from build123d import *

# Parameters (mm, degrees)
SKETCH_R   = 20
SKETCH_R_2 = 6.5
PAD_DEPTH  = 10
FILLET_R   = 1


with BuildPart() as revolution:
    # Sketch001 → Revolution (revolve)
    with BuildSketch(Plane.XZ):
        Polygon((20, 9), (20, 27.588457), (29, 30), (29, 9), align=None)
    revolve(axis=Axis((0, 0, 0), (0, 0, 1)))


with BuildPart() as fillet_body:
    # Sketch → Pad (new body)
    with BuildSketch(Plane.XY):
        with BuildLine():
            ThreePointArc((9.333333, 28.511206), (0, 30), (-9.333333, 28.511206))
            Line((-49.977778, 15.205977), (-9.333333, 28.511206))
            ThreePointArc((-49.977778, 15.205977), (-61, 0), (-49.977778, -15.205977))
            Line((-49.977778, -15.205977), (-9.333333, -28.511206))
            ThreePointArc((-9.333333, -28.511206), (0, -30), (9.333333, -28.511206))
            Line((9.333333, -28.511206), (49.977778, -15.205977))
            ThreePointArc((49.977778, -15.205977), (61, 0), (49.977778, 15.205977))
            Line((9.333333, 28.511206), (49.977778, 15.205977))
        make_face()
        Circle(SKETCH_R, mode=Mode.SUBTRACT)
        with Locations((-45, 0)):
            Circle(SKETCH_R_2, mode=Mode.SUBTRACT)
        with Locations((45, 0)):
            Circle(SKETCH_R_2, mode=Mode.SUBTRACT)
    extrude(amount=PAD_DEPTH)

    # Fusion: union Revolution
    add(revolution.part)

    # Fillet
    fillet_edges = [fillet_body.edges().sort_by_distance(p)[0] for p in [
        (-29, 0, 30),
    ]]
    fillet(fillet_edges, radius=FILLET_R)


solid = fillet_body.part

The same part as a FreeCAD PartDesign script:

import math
import FreeCAD as App
import Part
import Sketcher

V = App.Vector
Q = App.Units.Quantity


def edges_at(feature, points):
    """Names of the edges that pass closest to the given points."""
    edges = feature.Shape.Edges
    near = lambda p: min(range(len(edges)), key=lambda i: edges[i].distToShape(Part.Vertex(*p))[0])
    return sorted({f"Edge{near(p) + 1}" for p in points})


def add_polygon(sketch, points):
    """Adds a closed chain of lines whose ends are joined by coincident constraints."""
    first, n = sketch.GeometryCount, len(points)
    for a, b in zip(points, points[1:] + points[:1]):
        sketch.addGeometry(Part.LineSegment(App.Vector(*a, 0), App.Vector(*b, 0)), False)
    for i in range(n):
        sketch.addConstraint(Sketcher.Constraint("Coincident", first + i, 2, first + (i + 1) % n, 1))

doc = App.newDocument("Part")
body = doc.addObject("PartDesign::Body", "Body")

sketch1 = body.newObject("Sketcher::SketchObject", "Sketch")
sketch1.AttachmentSupport = (doc.getObject("XZ_Plane"), [""])
sketch1.MapMode = "FlatFace"
add_polygon(sketch1, [(20, 28), (20, 9), (29, 9), (29, 30)])
sketch1.addConstraint([
    Sketcher.Constraint("Vertical", 0),
    Sketcher.Constraint("Horizontal", 1),
    Sketcher.Constraint("Vertical", 2),
    Sketcher.Constraint("DistanceX", 1, 1, 1, 2, 9.0),
    Sketcher.Constraint("DistanceY", 2, 1, 2, 2, 21.0),
    Sketcher.Constraint("Angle", 3, Q("-164.999998 deg")),
    Sketcher.Constraint("DistanceX", -1, 1, 0, 2, 20.0),
    Sketcher.Constraint("DistanceY", -1, 1, 0, 2, 9.0),
])
revolution = body.newObject("PartDesign::Revolution", "Revolution")
revolution.Profile = sketch1
revolution.ReferenceAxis = (sketch1, ["V_Axis"])
revolution.Angle = 360
body2 = doc.addObject("PartDesign::Body", "Body001")

sketch2 = body2.newObject("Sketcher::SketchObject", "Sketch001")
sketch2.AttachmentSupport = (doc.getObject("XY_Plane001"), [""])
sketch2.MapMode = "FlatFace"
sketch2.addGeometry([
    Part.ArcOfCircle(Part.Circle(V(0, 0, 0), V(0, 0, 1), 30), math.radians(72), math.radians(108)),
    Part.LineSegment(V(-9, 29, 0), V(-50, 15, 0)),
    Part.ArcOfCircle(Part.Circle(V(-45, 0, 0), V(0, 0, 1), 16), math.radians(108), math.radians(252)),
    Part.LineSegment(V(-50, -15, 0), V(-9, -29, 0)),
    Part.ArcOfCircle(Part.Circle(V(0, 0, 0), V(0, 0, 1), 30), math.radians(-108), math.radians(-72)),
    Part.LineSegment(V(9, -29, 0), V(50, -15, 0)),
    Part.ArcOfCircle(Part.Circle(V(45, 0, 0), V(0, 0, 1), 16), math.radians(-72), math.radians(72)),
    Part.LineSegment(V(50, 15, 0), V(9, 29, 0)),
    Part.Circle(V(-45, 0, 0), V(0, 0, 1), 6),
    Part.Circle(V(0, 0, 0), V(0, 0, 1), 20),
    Part.Circle(V(45, 0, 0), V(0, 0, 1), 6),
], False)
sketch2.addConstraint([
    Sketcher.Constraint("Tangent", 0, 2, 1, 1),
    Sketcher.Constraint("Tangent", 1, 2, 2, 1),
    Sketcher.Constraint("Tangent", 2, 2, 3, 1),
    Sketcher.Constraint("Tangent", 3, 2, 4, 1),
    Sketcher.Constraint("Tangent", 4, 2, 5, 1),
    Sketcher.Constraint("Tangent", 5, 2, 6, 1),
    Sketcher.Constraint("Tangent", 6, 2, 7, 1),
    Sketcher.Constraint("Tangent", 7, 2, 0, 1),
    Sketcher.Constraint("Coincident", 0, 3, -1, 1),
    Sketcher.Constraint("Coincident", 4, 3, -1, 1),
    Sketcher.Constraint("Coincident", 9, 3, -1, 1),
    Sketcher.Constraint("Coincident", 8, 3, 2, 3),
    Sketcher.Constraint("Coincident", 10, 3, 6, 3),
    Sketcher.Constraint("Equal", 0, 4),
    Sketcher.Constraint("Equal", 2, 6),
    Sketcher.Constraint("Equal", 8, 10),
    Sketcher.Constraint("Symmetric", 2, 3, 6, 3, -1, 1),
    Sketcher.Constraint("PointOnObject", 2, 3, -1),
    Sketcher.Constraint("Diameter", 8, 13.0),
    Sketcher.Constraint("Diameter", 9, 40.0),
    Sketcher.Constraint("Radius", 2, 16.0),
    Sketcher.Constraint("DistanceX", 2, 3, -1, 1, 45.0),
    Sketcher.Constraint("Radius", 0, 29.999991),
])
pad1 = body2.newObject("PartDesign::Pad", "Pad")
pad1.Profile = sketch2
pad1.Length = 10
doc.recompute()

boolean = body2.newObject("PartDesign::Boolean", "Boolean")
boolean.Type = "Fuse"
boolean.addObjects([body])
doc.recompute()

fillet = body2.newObject("PartDesign::Fillet", "Fillet")
fillet.Base = (boolean, edges_at(boolean, [(-29, 0, 30)]))
fillet.Radius = 1

doc.recompute()
